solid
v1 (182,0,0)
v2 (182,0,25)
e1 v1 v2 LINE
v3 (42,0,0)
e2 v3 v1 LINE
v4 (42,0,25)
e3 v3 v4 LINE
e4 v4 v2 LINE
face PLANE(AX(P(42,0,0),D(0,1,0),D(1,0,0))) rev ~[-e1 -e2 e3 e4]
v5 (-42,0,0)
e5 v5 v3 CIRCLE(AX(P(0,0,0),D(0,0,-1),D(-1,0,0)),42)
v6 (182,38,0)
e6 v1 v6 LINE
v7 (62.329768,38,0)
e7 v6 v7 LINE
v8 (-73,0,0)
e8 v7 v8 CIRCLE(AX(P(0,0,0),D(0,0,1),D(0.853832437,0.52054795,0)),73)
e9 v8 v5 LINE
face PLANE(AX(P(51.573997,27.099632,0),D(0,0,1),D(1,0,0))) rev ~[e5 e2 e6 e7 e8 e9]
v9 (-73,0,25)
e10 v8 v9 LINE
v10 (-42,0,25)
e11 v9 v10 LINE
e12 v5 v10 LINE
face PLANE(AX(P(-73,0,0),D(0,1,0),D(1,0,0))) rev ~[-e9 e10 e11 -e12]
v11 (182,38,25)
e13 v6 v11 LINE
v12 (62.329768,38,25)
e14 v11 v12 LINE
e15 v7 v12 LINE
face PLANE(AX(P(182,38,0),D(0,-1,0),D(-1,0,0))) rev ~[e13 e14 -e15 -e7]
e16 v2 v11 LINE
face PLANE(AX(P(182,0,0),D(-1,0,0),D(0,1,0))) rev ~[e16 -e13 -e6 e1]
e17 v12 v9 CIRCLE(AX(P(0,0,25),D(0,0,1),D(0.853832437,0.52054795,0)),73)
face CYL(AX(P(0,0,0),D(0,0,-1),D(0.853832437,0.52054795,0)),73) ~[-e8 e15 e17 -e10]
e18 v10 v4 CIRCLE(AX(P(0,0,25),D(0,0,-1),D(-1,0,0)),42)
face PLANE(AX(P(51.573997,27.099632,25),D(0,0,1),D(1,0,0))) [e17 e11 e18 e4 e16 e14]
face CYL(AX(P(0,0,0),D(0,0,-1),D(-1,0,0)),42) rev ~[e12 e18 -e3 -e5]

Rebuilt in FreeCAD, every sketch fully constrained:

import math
import FreeCAD as App
import Part
import Sketcher
from FreeCAD import Vector

doc = App.newDocument("Part")
params = doc.addObject("Spreadsheet::Sheet", "Params")
for row, (alias, value) in enumerate([
    ("sketch1_radius", "42 mm"),
    ("sketch1_radius2", "73 mm"),
    ("sketch1_width", "140 mm"),
    ("sketch1_height", "38 mm"),
    ("pad1_length", "25 mm"),
], start=1):
    params.set(f"A{row}", alias)
    params.set(f"B{row}", "=" + value)
    params.setAlias(f"B{row}", alias)

body = doc.addObject("PartDesign::Body", "Body")

# Sketch on XY plane
sketch1 = body.newObject("Sketcher::SketchObject", "Sketch")
sketch1.AttachmentSupport = (doc.getObject("XY_Plane"), [""])
sketch1.MapMode = "FlatFace"
sketch1.addGeometry(Part.ArcOfCircle(Part.Circle(Vector(0, 0, 0), Vector(0, 0, 1), 42), math.radians(0), math.radians(180)), False)
sketch1.addGeometry(Part.LineSegment(Vector(42, 0, 0), Vector(182, 0, 0)), False)
sketch1.addGeometry(Part.LineSegment(Vector(182, 0, 0), Vector(182, 38, 0)), False)
sketch1.addGeometry(Part.LineSegment(Vector(182, 38, 0), Vector(62, 38, 0)), False)
sketch1.addGeometry(Part.ArcOfCircle(Part.Circle(Vector(0, 0, 0), Vector(0, 0, 1), 73), math.radians(31), math.radians(180)), False)
sketch1.addGeometry(Part.LineSegment(Vector(-73, 0, 0), Vector(-42, 0, 0)), False)
sketch1.addConstraint(Sketcher.Constraint("Coincident", 0, 1, 1, 1))
sketch1.addConstraint(Sketcher.Constraint("Coincident", 1, 2, 2, 1))
sketch1.addConstraint(Sketcher.Constraint("Coincident", 2, 2, 3, 1))
sketch1.addConstraint(Sketcher.Constraint("Coincident", 3, 2, 4, 1))
sketch1.addConstraint(Sketcher.Constraint("Coincident", 4, 2, 5, 1))
sketch1.addConstraint(Sketcher.Constraint("Coincident", 5, 2, 0, 2))
sketch1.addConstraint(Sketcher.Constraint("Horizontal", 1))
sketch1.addConstraint(Sketcher.Constraint("Vertical", 2))
sketch1.addConstraint(Sketcher.Constraint("Horizontal", 3))
sketch1.addConstraint(Sketcher.Constraint("Horizontal", 5))
sketch1.addConstraint(Sketcher.Constraint("Coincident", 0, 3, -1, 1))
sketch1.addConstraint(Sketcher.Constraint("Coincident", 4, 3, -1, 1))
sketch1.addConstraint(Sketcher.Constraint("PointOnObject", 0, 1, -1))
sketch1.addConstraint(Sketcher.Constraint("PointOnObject", 4, 2, -1))
sketch1.addConstraint(Sketcher.Constraint("Radius", 0, 42.0))
sketch1.addConstraint(Sketcher.Constraint("Radius", 4, 73.0))
sketch1.addConstraint(Sketcher.Constraint("DistanceX", 1, 1, 1, 2, 140.0))
sketch1.addConstraint(Sketcher.Constraint("DistanceY", 2, 1, 2, 2, 38.0))
sketch1.setExpression("Constraints[14]", "Params.sketch1_radius")
sketch1.setExpression("Constraints[15]", "Params.sketch1_radius2")
sketch1.setExpression("Constraints[16]", "Params.sketch1_width")
sketch1.setExpression("Constraints[17]", "Params.sketch1_height")
pad1 = body.newObject("PartDesign::Pad", "Pad")
pad1.Profile = sketch1
pad1.setExpression("Length", "Params.pad1_length")

doc.recompute()
